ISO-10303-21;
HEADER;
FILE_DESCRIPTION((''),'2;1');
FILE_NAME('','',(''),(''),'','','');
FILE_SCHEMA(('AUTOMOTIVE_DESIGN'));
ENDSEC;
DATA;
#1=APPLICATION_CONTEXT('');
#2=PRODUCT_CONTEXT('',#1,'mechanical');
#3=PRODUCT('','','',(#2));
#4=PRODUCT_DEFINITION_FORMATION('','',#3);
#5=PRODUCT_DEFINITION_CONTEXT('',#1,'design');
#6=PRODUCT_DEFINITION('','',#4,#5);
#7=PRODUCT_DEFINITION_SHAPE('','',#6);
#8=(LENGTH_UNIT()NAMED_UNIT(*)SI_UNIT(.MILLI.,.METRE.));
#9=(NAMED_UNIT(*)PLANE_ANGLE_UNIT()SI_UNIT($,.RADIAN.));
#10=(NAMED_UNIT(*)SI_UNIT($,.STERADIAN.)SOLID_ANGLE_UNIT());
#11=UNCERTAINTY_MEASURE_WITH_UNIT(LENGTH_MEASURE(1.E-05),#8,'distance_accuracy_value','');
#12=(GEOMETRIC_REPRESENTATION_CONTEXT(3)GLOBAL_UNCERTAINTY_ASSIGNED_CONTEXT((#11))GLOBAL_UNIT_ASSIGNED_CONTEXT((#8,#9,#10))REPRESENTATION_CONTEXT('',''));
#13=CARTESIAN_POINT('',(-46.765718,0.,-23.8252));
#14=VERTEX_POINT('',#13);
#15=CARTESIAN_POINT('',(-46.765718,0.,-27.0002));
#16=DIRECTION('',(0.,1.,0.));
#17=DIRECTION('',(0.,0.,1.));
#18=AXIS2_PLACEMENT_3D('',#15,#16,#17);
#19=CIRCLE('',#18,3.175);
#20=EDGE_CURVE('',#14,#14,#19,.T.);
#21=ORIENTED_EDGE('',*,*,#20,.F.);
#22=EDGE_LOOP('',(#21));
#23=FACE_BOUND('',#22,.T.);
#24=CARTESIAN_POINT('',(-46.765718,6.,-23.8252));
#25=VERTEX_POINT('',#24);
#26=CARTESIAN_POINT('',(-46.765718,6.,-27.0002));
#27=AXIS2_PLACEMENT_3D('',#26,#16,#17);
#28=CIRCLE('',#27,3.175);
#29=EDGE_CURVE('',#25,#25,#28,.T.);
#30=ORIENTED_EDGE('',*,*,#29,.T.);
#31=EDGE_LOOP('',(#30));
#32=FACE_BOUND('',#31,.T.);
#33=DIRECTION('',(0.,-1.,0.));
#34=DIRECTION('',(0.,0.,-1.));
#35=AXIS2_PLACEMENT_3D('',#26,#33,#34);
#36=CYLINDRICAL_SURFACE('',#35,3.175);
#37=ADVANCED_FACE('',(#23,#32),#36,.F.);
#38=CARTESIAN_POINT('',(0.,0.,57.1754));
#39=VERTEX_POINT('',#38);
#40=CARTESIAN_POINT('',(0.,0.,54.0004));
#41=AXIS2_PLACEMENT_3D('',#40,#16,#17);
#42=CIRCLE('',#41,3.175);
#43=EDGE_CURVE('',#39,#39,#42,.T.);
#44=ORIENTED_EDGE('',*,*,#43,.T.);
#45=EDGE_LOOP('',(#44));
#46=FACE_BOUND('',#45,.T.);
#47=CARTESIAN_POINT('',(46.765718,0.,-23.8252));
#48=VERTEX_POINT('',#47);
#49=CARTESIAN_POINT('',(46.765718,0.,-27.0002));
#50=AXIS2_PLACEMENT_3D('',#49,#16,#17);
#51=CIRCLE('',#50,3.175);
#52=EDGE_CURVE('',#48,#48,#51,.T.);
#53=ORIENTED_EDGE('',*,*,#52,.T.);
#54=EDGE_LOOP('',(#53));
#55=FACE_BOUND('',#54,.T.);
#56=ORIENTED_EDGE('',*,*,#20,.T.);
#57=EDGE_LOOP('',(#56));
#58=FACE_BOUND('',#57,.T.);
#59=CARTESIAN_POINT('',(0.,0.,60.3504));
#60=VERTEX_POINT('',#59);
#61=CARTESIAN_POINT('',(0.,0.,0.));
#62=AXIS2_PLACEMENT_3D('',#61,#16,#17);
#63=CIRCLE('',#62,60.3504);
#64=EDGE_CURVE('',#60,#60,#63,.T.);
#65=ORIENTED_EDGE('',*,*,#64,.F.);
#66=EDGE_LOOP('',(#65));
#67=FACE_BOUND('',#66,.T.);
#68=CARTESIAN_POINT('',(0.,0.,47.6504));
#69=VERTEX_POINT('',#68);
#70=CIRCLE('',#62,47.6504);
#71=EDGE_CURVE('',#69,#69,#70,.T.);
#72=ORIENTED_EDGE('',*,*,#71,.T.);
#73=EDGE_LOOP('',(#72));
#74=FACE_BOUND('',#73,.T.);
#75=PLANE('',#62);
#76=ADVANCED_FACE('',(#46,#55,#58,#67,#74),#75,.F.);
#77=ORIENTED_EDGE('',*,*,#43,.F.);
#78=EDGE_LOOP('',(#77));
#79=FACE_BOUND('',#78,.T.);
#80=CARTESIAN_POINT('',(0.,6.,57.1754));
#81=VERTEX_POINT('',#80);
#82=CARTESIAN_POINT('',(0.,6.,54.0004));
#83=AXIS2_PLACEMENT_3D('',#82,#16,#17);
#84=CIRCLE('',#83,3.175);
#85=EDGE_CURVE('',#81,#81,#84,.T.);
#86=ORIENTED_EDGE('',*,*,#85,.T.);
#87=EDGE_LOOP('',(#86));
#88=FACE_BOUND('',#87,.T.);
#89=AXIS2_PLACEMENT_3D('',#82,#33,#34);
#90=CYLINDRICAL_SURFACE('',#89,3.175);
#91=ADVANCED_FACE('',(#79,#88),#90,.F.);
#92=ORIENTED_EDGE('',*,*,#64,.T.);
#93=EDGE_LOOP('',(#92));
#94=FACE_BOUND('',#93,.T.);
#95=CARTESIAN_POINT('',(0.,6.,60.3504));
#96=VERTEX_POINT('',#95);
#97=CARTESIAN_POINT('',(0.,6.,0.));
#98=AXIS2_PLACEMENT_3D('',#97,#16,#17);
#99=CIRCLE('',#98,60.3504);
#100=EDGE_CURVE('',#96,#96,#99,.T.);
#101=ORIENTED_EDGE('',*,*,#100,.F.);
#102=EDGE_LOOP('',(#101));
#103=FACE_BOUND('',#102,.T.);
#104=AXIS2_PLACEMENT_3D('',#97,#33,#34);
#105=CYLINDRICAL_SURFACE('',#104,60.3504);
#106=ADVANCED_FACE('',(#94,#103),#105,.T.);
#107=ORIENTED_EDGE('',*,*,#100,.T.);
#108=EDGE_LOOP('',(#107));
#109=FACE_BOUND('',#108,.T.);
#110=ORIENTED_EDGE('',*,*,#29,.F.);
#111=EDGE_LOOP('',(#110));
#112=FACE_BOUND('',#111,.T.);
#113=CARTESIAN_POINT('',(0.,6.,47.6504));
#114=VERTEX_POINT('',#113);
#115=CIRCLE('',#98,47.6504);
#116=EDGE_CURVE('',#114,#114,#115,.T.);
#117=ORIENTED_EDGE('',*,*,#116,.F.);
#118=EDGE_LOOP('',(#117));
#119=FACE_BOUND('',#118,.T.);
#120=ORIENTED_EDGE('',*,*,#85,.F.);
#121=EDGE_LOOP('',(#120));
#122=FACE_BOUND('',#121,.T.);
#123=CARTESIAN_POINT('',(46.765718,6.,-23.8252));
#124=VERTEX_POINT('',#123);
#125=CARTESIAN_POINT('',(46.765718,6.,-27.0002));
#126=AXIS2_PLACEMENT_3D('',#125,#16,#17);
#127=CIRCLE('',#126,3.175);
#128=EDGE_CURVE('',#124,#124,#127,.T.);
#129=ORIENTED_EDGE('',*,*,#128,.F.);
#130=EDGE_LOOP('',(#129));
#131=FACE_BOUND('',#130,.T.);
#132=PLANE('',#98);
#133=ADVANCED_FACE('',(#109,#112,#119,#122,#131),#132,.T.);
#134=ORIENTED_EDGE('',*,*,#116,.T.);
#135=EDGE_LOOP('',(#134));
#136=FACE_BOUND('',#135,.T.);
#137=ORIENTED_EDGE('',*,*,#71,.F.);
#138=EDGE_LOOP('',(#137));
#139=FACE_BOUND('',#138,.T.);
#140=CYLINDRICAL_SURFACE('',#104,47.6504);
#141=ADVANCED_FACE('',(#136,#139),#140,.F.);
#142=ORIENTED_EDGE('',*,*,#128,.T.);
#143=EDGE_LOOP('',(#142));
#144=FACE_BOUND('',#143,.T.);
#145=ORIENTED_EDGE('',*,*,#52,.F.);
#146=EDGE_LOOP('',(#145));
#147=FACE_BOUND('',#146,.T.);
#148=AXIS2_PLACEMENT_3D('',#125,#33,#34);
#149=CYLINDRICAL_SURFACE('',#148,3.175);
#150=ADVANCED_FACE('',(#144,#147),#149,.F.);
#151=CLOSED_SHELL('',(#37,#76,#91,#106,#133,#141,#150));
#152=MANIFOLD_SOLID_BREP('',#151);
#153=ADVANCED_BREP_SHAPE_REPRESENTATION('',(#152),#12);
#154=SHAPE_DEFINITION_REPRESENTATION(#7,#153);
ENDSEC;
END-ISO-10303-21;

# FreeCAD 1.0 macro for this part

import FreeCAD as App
import Part
import Sketcher

V = App.Vector
Q = App.Units.Quantity

doc = App.newDocument("Part")
body = doc.addObject("PartDesign::Body", "Body")

# Sketch on XZ plane
sketch1 = doc.addObject("Sketcher::SketchObject", "Sketch")
body.addObject(sketch1)
sketch1.AttachmentSupport = (doc.XZ_Plane, [""])
sketch1.MapMode = "FlatFace"
sketch1.addGeometry(Part.Circle(V(0, 0, 0), V(0, 0, 1), 60.3504), False)
sketch1.addGeometry(Part.Circle(V(0, 54.0004, 0), V(0, 0, 1), 3.175), False)
sketch1.addGeometry(Part.Circle(V(-46.765718, -27.0002, 0), V(0, 0, 1), 3.175), False)
sketch1.addGeometry(Part.Circle(V(0, 0, 0), V(0, 0, 1), 47.6504), False)
sketch1.addGeometry(Part.Circle(V(46.765718, -27.0002, 0), V(0, 0, 1), 3.175), False)
sketch1.addConstraint(Sketcher.Constraint("Coincident", 0, 3, -1, 1))
sketch1.addConstraint(Sketcher.Constraint("Coincident", 3, 3, -1, 1))
sketch1.addConstraint(Sketcher.Constraint("Equal", 1, 2))
sketch1.addConstraint(Sketcher.Constraint("Equal", 2, 4))
sketch1.addConstraint(Sketcher.Constraint("Symmetric", 2, 3, 4, 3, -2))
sketch1.addConstraint(Sketcher.Constraint("PointOnObject", 1, 3, -2))
sketch1.addConstraint(Sketcher.Constraint("Diameter", 1, Q("0.25 in")))
sketch1.addConstraint(Sketcher.Constraint("Diameter", 0, Q("4.752 in")))
sketch1.addConstraint(Sketcher.Constraint("Diameter", 3, Q("3.752 in")))
sketch1.addConstraint(Sketcher.Constraint("DistanceY", -1, 1, 1, 3, Q("2.126 in")))
sketch1.addConstraint(Sketcher.Constraint("DistanceY", 2, 3, -1, 1, Q("1.063 in")))
sketch1.addConstraint(Sketcher.Constraint("DistanceX", 2, 3, -1, 1, Q("46.765718 mm")))
pad1 = doc.addObject("PartDesign::Pad", "Pad")
body.addObject(pad1)
pad1.Profile = sketch1
pad1.Length = 6
pad1.Reversed = True

doc.recompute()
